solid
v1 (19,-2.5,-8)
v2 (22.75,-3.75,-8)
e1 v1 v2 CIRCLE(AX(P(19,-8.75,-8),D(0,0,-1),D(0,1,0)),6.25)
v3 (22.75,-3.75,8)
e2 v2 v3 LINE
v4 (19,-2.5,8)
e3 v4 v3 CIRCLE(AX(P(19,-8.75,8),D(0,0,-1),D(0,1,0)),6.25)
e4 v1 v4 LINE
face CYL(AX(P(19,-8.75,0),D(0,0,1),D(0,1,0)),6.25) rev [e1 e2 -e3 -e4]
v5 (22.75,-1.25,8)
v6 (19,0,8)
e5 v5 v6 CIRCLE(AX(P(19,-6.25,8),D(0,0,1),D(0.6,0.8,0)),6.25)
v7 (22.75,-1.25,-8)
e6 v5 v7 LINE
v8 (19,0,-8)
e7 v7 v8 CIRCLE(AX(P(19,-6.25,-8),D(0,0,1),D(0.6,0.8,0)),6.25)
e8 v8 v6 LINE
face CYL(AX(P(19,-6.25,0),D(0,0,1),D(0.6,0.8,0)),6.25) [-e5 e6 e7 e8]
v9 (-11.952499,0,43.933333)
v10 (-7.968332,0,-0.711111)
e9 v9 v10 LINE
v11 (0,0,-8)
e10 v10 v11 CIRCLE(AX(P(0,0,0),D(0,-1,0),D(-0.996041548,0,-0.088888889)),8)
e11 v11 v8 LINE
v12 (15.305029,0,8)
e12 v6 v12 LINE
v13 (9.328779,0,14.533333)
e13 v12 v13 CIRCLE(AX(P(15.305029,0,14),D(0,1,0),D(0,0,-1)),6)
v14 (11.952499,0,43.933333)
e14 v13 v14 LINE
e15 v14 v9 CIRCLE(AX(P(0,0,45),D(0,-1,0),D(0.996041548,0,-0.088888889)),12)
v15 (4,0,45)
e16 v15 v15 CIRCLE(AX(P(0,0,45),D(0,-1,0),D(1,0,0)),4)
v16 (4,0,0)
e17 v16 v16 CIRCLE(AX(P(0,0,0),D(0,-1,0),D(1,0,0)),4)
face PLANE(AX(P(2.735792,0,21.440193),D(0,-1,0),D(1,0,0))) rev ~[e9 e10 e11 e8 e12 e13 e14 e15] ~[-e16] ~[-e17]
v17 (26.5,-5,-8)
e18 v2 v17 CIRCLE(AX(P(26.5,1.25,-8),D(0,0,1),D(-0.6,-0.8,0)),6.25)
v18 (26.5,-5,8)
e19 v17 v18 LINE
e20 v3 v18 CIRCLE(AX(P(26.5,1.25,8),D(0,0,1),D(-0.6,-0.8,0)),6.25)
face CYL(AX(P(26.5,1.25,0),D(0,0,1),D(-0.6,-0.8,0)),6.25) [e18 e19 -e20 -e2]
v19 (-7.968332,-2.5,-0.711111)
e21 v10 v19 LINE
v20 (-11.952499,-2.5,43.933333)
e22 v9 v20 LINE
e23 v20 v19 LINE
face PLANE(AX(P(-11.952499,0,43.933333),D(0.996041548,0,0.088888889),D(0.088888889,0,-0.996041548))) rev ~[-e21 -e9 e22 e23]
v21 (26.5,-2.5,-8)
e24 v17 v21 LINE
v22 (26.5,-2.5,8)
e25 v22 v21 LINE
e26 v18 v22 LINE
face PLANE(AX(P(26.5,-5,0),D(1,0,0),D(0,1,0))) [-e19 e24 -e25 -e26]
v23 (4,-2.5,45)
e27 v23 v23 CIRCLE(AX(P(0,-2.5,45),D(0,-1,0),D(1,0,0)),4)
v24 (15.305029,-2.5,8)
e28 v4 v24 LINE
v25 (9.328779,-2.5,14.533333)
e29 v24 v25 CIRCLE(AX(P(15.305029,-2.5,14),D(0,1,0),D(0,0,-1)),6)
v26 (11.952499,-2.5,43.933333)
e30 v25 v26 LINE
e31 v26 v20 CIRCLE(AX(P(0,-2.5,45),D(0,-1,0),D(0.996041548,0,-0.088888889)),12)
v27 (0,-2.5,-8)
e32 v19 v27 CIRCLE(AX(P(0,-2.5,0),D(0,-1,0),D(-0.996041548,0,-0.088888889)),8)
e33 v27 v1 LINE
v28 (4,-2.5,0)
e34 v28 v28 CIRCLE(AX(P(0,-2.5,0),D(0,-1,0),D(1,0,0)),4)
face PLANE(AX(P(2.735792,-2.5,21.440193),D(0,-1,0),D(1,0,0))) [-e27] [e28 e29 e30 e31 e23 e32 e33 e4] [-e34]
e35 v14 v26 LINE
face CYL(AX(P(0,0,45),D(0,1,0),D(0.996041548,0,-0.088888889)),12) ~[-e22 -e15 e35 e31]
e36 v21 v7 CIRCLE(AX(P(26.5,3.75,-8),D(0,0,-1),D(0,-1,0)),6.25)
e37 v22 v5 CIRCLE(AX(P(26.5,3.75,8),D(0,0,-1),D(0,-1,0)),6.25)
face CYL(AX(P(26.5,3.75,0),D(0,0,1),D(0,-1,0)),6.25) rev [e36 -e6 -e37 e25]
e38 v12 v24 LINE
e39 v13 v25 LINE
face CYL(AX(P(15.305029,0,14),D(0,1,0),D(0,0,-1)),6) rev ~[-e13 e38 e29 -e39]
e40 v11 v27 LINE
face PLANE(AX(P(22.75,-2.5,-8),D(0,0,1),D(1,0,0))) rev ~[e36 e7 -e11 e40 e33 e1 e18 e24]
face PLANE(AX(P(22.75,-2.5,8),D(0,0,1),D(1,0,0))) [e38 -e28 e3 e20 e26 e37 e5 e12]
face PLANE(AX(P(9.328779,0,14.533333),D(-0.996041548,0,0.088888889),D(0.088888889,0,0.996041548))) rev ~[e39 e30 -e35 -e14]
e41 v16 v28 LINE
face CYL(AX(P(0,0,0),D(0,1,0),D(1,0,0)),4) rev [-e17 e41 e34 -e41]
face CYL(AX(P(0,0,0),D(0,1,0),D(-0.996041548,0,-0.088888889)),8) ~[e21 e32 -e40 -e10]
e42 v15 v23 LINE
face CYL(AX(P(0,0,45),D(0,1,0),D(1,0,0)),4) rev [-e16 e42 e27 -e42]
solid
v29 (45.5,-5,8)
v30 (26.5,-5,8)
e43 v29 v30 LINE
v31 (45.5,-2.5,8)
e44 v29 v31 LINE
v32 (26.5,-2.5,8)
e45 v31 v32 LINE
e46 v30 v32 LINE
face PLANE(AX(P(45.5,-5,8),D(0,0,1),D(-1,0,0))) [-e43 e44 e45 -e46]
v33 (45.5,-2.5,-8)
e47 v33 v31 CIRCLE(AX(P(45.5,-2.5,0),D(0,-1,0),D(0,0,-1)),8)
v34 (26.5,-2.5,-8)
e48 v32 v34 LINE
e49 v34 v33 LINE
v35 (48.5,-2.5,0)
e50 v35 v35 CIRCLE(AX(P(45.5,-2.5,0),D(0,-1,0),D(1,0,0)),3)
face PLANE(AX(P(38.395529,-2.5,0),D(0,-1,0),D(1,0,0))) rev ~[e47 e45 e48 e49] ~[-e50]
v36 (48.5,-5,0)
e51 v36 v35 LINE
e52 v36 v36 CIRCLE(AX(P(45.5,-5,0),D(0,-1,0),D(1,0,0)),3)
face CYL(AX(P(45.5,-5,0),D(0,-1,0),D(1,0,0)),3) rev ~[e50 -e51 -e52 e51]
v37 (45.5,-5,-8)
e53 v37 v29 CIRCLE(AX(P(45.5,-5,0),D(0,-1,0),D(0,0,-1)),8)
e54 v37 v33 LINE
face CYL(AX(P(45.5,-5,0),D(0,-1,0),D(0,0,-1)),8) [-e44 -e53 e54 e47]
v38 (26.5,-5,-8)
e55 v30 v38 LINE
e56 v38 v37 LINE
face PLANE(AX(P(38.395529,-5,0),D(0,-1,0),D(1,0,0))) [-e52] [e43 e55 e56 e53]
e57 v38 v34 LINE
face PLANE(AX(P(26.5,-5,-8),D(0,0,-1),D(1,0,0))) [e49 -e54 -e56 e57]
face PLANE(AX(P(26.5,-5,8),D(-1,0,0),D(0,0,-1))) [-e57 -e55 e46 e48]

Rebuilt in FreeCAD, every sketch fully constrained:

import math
import FreeCAD as App
import Part
import Sketcher
from FreeCAD import Vector
Q = App.Units.Quantity

doc = App.newDocument("Part")
body = doc.addObject("PartDesign::Body", "Body")

# Sketch on XZ plane
sketch1 = body.newObject("Sketcher::SketchObject", "Sketch")
sketch1.AttachmentSupport = (doc.getObject("XZ_Plane"), [""])
sketch1.MapMode = "FlatFace"
sketch1.addGeometry(Part.ArcOfCircle(Part.Circle(Vector(0, 0, 0), Vector(0, 0, 1), 8), math.radians(-175), math.radians(-90)), False)
sketch1.addGeometry(Part.LineSegment(Vector(0, -8, 0), Vector(19, -8, 0)), False)
sketch1.addGeometry(Part.LineSegment(Vector(19, -8, 0), Vector(19, 8, 0)), False)
sketch1.addGeometry(Part.LineSegment(Vector(19, 8, 0), Vector(15.3, 8, 0)), False)
sketch1.addGeometry(Part.ArcOfCircle(Part.Circle(Vector(15.3, 14, 0), Vector(0, 0, 1), 6), math.radians(175), math.radians(270)), False)
sketch1.addGeometry(Part.LineSegment(Vector(9.3, 14.5, 0), Vector(12, 43.9, 0)), False)
sketch1.addGeometry(Part.ArcOfCircle(Part.Circle(Vector(0, 45, 0), Vector(0, 0, 1), 12), math.radians(-5), math.radians(185)), False)
sketch1.addGeometry(Part.LineSegment(Vector(-12, 43.9, 0), Vector(-8, -0.7, 0)), False)
sketch1.addGeometry(Part.Circle(Vector(0, 0, 0), Vector(0, 0, 1), 4), False)
sketch1.addGeometry(Part.Circle(Vector(0, 45, 0), Vector(0, 0, 1), 4), False)
sketch1.addConstraint(Sketcher.Constraint("Tangent", 0, 2, 1, 1))
sketch1.addConstraint(Sketcher.Constraint("Coincident", 1, 2, 2, 1))
sketch1.addConstraint(Sketcher.Constraint("Coincident", 2, 2, 3, 1))
sketch1.addConstraint(Sketcher.Constraint("Tangent", 3, 2, 4, 2))
sketch1.addConstraint(Sketcher.Constraint("Tangent", 4, 1, 5, 1))
sketch1.addConstraint(Sketcher.Constraint("Tangent", 5, 2, 6, 1))
sketch1.addConstraint(Sketcher.Constraint("Tangent", 6, 2, 7, 1))
sketch1.addConstraint(Sketcher.Constraint("Tangent", 7, 2, 0, 1))
sketch1.addConstraint(Sketcher.Constraint("Horizontal", 1))
sketch1.addConstraint(Sketcher.Constraint("Vertical", 2))
sketch1.addConstraint(Sketcher.Constraint("Horizontal", 3))
sketch1.addConstraint(Sketcher.Constraint("Coincident", 0, 3, -1, 1))
sketch1.addConstraint(Sketcher.Constraint("Coincident", 8, 3, -1, 1))
sketch1.addConstraint(Sketcher.Constraint("Coincident", 9, 3, 6, 3))
sketch1.addConstraint(Sketcher.Constraint("Equal", 8, 9))
sketch1.addConstraint(Sketcher.Constraint("Symmetric", 5, 2, 6, 2, -2))
sketch1.addConstraint(Sketcher.Constraint("Diameter", 8, Q("8 mm")))
sketch1.addConstraint(Sketcher.Constraint("Radius", 0, Q("8 mm")))
sketch1.addConstraint(Sketcher.Constraint("Radius", 4, Q("6 mm")))
sketch1.addConstraint(Sketcher.Constraint("Radius", 6, Q("12 mm")))
sketch1.addConstraint(Sketcher.Constraint("DistanceX", 1, 1, 1, 2, Q("19 mm")))
sketch1.addConstraint(Sketcher.Constraint("DistanceY", 2, 1, 2, 2, Q("16 mm")))
sketch1.addConstraint(Sketcher.Constraint("DistanceY", -1, 1, 6, 3, Q("45 mm")))
pad1 = body.newObject("PartDesign::Pad", "Pad")
pad1.Profile = sketch1
pad1.Length = 2.5

# Sketch on XY plane
sketch2 = body.newObject("Sketcher::SketchObject", "Sketch001")
sketch2.AttachmentSupport = (doc.getObject("XY_Plane"), [""])
sketch2.MapMode = "FlatFace"
sketch2.addGeometry(Part.LineSegment(Vector(19, 0, 0), Vector(19, -2.5, 0)), False)
sketch2.addGeometry(Part.ArcOfCircle(Part.Circle(Vector(19, -8.8, 0), Vector(0, 0, 1), 6.2), math.radians(53), math.radians(90)), False)
sketch2.addGeometry(Part.ArcOfCircle(Part.Circle(Vector(26.5, 1.2, 0), Vector(0, 0, 1), 6.2), math.radians(-127), math.radians(-90)), False)
sketch2.addGeometry(Part.LineSegment(Vector(26.5, -5, 0), Vector(26.5, -2.5, 0)), False)
sketch2.addGeometry(Part.ArcOfCircle(Part.Circle(Vector(26.5, 3.8, 0), Vector(0, 0, 1), 6.2), math.radians(-127), math.radians(-90)), False)
sketch2.addGeometry(Part.ArcOfCircle(Part.Circle(Vector(19, -6.2, 0), Vector(0, 0, 1), 6.2), math.radians(53), math.radians(90)), False)
sketch2.addConstraint(Sketcher.Constraint("Coincident", 0, 2, 1, 2))
sketch2.addConstraint(Sketcher.Constraint("Tangent", 1, 1, 2, 1))
sketch2.addConstraint(Sketcher.Constraint("Coincident", 2, 2, 3, 1))
sketch2.addConstraint(Sketcher.Constraint("Coincident", 3, 2, 4, 2))
sketch2.addConstraint(Sketcher.Constraint("Tangent", 4, 1, 5, 1))
sketch2.addConstraint(Sketcher.Constraint("Coincident", 5, 2, 0, 1))
sketch2.addConstraint(Sketcher.Constraint("Vertical", 0))
sketch2.addConstraint(Sketcher.Constraint("Vertical", 3))
sketch2.addConstraint(Sketcher.Constraint("Equal", 1, 2))
sketch2.addConstraint(Sketcher.Constraint("Equal", 2, 4))
sketch2.addConstraint(Sketcher.Constraint("Equal", 4, 5))
sketch2.addConstraint(Sketcher.Constraint("PointOnObject", 5, 2, -1))
sketch2.addConstraint(Sketcher.Constraint("Horizontal", 0, 2, 3, 2))
sketch2.addConstraint(Sketcher.Constraint("Vertical", 2, 3, 4, 3))
sketch2.addConstraint(Sketcher.Constraint("Vertical", 1, 3, 5, 3))
sketch2.addConstraint(Sketcher.Constraint("Vertical", 5, 3, 0, 2))
sketch2.addConstraint(Sketcher.Constraint("Vertical", 4, 3, 2, 2))
sketch2.addConstraint(Sketcher.Constraint("Radius", 1, Q("6.25 mm")))
sketch2.addConstraint(Sketcher.Constraint("DistanceY", 0, 2, 0, 1, Q("2.5 mm")))
sketch2.addConstraint(Sketcher.Constraint("DistanceX", -1, 1, 1, 3, Q("19 mm")))
pad2 = body.newObject("PartDesign::Pad", "Pad001")
pad2.Profile = sketch2
pad2.Length = 16
pad2.Midplane = True
body2 = doc.addObject("PartDesign::Body", "Body001")

# Sketch on XZ plane
sketch3 = body2.newObject("Sketcher::SketchObject", "Sketch002")
sketch3.AttachmentSupport = (doc.getObject("XZ_Plane001"), [""])
sketch3.MapMode = "FlatFace"
sketch3.AttachmentOffset = App.Placement(Vector(0, 0, 5), App.Rotation())
sketch3.addGeometry(Part.LineSegment(Vector(45.5, 8, 0), Vector(26.5, 8, 0)), False)
sketch3.addGeometry(Part.LineSegment(Vector(26.5, 8, 0), Vector(26.5, -8, 0)), False)
sketch3.addGeometry(Part.LineSegment(Vector(26.5, -8, 0), Vector(45.5, -8, 0)), False)
sketch3.addGeometry(Part.ArcOfCircle(Part.Circle(Vector(45.5, 0, 0), Vector(0, 0, 1), 8), math.radians(-90), math.radians(90)), False)
sketch3.addGeometry(Part.Circle(Vector(45.5, 0, 0), Vector(0, 0, 1), 3), False)
sketch3.addConstraint(Sketcher.Constraint("Coincident", 0, 2, 1, 1))
sketch3.addConstraint(Sketcher.Constraint("Coincident", 1, 2, 2, 1))
sketch3.addConstraint(Sketcher.Constraint("Tangent", 2, 2, 3, 1))
sketch3.addConstraint(Sketcher.Constraint("Tangent", 3, 2, 0, 1))
sketch3.addConstraint(Sketcher.Constraint("Horizontal", 0))
sketch3.addConstraint(Sketcher.Constraint("Vertical", 1))
sketch3.addConstraint(Sketcher.Constraint("Horizontal", 2))
sketch3.addConstraint(Sketcher.Constraint("Coincident", 4, 3, 3, 3))
sketch3.addConstraint(Sketcher.Constraint("PointOnObject", 3, 3, -1))
sketch3.addConstraint(Sketcher.Constraint("Diameter", 4, Q("6 mm")))
sketch3.addConstraint(Sketcher.Constraint("Radius", 3, Q("8 mm")))
sketch3.addConstraint(Sketcher.Constraint("DistanceX", 0, 2, 0, 1, Q("19 mm")))
sketch3.addConstraint(Sketcher.Constraint("DistanceX", -1, 1, 3, 3, Q("45.5 mm")))
pad3 = body2.newObject("PartDesign::Pad", "Pad002")
pad3.Profile = sketch3
pad3.Length = 2.5
pad3.Reversed = True

doc.recompute()
